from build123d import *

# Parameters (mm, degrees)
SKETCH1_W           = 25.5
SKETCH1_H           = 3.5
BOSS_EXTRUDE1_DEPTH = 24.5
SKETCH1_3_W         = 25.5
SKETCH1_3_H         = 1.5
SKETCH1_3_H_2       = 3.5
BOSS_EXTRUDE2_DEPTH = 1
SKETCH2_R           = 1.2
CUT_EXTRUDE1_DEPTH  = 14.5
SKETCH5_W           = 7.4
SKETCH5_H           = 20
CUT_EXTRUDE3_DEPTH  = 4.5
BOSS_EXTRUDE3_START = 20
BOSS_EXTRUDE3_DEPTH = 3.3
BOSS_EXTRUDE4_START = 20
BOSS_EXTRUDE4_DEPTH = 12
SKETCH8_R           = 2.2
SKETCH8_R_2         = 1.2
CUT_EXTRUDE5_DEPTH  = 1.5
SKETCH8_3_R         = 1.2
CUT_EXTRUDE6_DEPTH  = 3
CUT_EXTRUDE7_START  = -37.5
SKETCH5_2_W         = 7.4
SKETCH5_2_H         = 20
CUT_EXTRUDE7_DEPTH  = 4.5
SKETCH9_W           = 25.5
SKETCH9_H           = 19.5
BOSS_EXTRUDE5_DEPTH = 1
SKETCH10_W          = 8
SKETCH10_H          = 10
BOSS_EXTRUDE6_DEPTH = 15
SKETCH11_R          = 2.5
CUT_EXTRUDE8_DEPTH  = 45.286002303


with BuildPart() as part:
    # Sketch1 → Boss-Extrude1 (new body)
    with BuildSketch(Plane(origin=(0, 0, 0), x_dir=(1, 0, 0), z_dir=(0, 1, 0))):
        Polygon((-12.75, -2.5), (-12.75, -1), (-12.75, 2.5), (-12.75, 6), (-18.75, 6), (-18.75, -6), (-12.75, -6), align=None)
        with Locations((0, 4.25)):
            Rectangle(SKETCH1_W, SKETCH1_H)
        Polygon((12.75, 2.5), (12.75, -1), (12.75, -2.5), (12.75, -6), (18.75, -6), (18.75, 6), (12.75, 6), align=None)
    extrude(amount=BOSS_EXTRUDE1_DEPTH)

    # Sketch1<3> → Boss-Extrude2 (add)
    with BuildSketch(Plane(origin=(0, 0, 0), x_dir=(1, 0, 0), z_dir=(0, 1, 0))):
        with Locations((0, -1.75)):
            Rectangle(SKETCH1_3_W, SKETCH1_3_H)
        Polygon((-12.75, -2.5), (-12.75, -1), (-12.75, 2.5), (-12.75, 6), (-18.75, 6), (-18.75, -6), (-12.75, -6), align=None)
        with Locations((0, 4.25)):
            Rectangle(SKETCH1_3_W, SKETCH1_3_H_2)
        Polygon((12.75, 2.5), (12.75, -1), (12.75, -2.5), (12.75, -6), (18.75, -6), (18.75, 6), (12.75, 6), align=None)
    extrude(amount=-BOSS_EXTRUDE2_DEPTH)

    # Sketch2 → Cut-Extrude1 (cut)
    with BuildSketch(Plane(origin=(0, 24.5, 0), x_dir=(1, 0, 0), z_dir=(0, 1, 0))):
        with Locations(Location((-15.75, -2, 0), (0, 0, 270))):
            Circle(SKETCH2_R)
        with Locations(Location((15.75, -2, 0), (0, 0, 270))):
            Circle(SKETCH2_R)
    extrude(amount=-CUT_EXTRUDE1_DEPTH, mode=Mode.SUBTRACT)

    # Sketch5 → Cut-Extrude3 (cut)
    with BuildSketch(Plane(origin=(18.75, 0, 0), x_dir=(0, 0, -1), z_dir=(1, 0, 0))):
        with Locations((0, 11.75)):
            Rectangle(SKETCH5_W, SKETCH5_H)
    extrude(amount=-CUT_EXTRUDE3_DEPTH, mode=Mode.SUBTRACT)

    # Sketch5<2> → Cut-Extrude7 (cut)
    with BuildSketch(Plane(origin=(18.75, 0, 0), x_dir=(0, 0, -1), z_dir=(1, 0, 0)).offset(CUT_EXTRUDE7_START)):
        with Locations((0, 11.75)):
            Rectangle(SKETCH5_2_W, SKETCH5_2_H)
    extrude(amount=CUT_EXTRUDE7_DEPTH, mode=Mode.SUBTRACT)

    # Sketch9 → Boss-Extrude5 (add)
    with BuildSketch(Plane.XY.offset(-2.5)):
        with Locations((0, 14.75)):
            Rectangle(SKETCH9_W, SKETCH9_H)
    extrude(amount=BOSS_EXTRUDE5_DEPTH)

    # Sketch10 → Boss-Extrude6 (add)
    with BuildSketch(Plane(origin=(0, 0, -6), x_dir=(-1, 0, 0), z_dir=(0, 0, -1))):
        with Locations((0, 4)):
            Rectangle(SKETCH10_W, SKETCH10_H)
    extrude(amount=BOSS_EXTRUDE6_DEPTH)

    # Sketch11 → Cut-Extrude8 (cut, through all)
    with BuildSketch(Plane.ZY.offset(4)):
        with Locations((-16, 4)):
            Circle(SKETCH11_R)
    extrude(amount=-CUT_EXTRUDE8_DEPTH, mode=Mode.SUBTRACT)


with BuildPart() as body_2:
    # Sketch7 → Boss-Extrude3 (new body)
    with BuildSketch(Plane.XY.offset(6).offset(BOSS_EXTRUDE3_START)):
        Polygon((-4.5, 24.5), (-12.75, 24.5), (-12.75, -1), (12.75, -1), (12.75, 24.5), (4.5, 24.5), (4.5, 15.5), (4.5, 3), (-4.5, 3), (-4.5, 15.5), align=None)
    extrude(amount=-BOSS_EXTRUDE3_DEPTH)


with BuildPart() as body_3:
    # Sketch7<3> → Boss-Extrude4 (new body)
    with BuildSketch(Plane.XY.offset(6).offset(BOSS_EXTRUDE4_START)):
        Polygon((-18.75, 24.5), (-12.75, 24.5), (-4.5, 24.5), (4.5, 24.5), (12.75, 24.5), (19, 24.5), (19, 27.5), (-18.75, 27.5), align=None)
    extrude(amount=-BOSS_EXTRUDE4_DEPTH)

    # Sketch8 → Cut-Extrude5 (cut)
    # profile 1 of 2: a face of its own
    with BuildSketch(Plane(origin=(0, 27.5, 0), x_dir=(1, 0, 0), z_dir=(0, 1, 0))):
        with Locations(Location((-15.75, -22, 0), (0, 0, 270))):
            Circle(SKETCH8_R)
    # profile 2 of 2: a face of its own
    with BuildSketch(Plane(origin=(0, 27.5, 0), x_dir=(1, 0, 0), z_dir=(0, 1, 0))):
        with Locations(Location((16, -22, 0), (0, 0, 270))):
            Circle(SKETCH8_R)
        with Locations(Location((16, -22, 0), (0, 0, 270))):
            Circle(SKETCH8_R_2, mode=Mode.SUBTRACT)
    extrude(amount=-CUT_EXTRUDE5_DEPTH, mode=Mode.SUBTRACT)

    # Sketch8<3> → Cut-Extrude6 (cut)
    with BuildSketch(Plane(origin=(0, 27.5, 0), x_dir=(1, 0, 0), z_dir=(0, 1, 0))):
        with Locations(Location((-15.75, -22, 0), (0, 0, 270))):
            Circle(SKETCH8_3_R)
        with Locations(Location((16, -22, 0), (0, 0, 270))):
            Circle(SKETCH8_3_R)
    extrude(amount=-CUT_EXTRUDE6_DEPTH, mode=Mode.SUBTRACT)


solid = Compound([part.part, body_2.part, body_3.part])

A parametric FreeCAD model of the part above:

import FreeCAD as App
import Part
import Sketcher

V = App.Vector

doc = App.newDocument("Part")
body = doc.addObject("PartDesign::Body", "Body")

sketch1 = body.newObject("Sketcher::SketchObject", "Sketch")
sketch1.AttachmentSupport = (doc.getObject("XZ_Plane"), [""])
sketch1.MapMode = "FlatFace"
sketch1.addGeometry([
    Part.LineSegment(V(-19, -6, 0), V(-19, 6, 0)),
    Part.LineSegment(V(-19, 6, 0), V(-13, 6, 0)),
    Part.LineSegment(V(-13, 6, 0), V(-13, -2, 0)),
    Part.LineSegment(V(-13, -2, 0), V(13, -2, 0)),
    Part.LineSegment(V(13, -2, 0), V(13, 6, 0)),
    Part.LineSegment(V(13, 6, 0), V(19, 6, 0)),
    Part.LineSegment(V(19, 6, 0), V(19, -6, 0)),
    Part.LineSegment(V(19, -6, 0), V(-19, -6, 0)),
], False)
sketch1.addConstraint([
    Sketcher.Constraint("Coincident", 0, 2, 1, 1),
    Sketcher.Constraint("Coincident", 1, 2, 2, 1),
    Sketcher.Constraint("Coincident", 2, 2, 3, 1),
    Sketcher.Constraint("Coincident", 3, 2, 4, 1),
    Sketcher.Constraint("Coincident", 4, 2, 5, 1),
    Sketcher.Constraint("Coincident", 5, 2, 6, 1),
    Sketcher.Constraint("Coincident", 6, 2, 7, 1),
    Sketcher.Constraint("Coincident", 7, 2, 0, 1),
    Sketcher.Constraint("Vertical", 0),
    Sketcher.Constraint("Horizontal", 1),
    Sketcher.Constraint("Vertical", 2),
    Sketcher.Constraint("Horizontal", 3),
    Sketcher.Constraint("Vertical", 4),
    Sketcher.Constraint("Horizontal", 5),
    Sketcher.Constraint("Vertical", 6),
    Sketcher.Constraint("Horizontal", 7),
    Sketcher.Constraint("Symmetric", 0, 2, 6, 2, -1, 1),
    Sketcher.Constraint("Symmetric", 1, 2, 4, 2, -2),
    Sketcher.Constraint("DistanceX", 1, 1, 1, 2, 6.0),
    Sketcher.Constraint("DistanceY", 0, 1, 0, 2, 12.0),
    Sketcher.Constraint("DistanceX", 3, 1, 3, 2, 25.5),
    Sketcher.Constraint("DistanceY", 2, 2, 2, 1, 8.5),
])
pad1 = body.newObject("PartDesign::Pad", "Pad")
pad1.Profile = sketch1
pad1.Length = 24.5
pad1.Reversed = True

sketch2 = body.newObject("Sketcher::SketchObject", "Sketch001")
sketch2.AttachmentSupport = (doc.getObject("XZ_Plane"), [""])
sketch2.MapMode = "FlatFace"
sketch2.addGeometry([
    Part.LineSegment(V(-12.8, 2.5, 0), V(12.8, 2.5, 0)),
    Part.LineSegment(V(12.8, 2.5, 0), V(12.8, 6, 0)),
    Part.LineSegment(V(12.8, 6, 0), V(18.8, 6, 0)),
    Part.LineSegment(V(18.8, 6, 0), V(18.8, -6, 0)),
    Part.LineSegment(V(18.8, -6, 0), V(-18.8, -6, 0)),
    Part.LineSegment(V(-18.8, -6, 0), V(-18.8, 6, 0)),
    Part.LineSegment(V(-18.8, 6, 0), V(-12.8, 6, 0)),
    Part.LineSegment(V(-12.8, 6, 0), V(-12.8, 2.5, 0)),
    Part.LineSegment(V(12.8, 1, 0), V(-12.8, 1, 0)),
    Part.LineSegment(V(-12.8, 1, 0), V(-12.8, -2.5, 0)),
    Part.LineSegment(V(-12.8, -2.5, 0), V(12.8, -2.5, 0)),
    Part.LineSegment(V(12.8, -2.5, 0), V(12.8, 1, 0)),
], False)
sketch2.addConstraint([
    Sketcher.Constraint("Coincident", 0, 2, 1, 1),
    Sketcher.Constraint("Coincident", 1, 2, 2, 1),
    Sketcher.Constraint("Coincident", 2, 2, 3, 1),
    Sketcher.Constraint("Coincident", 3, 2, 4, 1),
    Sketcher.Constraint("Coincident", 4, 2, 5, 1),
    Sketcher.Constraint("Coincident", 5, 2, 6, 1),
    Sketcher.Constraint("Coincident", 6, 2, 7, 1),
    Sketcher.Constraint("Coincident", 7, 2, 0, 1),
    Sketcher.Constraint("Coincident", 8, 2, 9, 1),
    Sketcher.Constraint("Coincident", 9, 2, 10, 1),
    Sketcher.Constraint("Coincident", 10, 2, 11, 1),
    Sketcher.Constraint("Coincident", 11, 2, 8, 1),
    Sketcher.Constraint("Horizontal", 0),
    Sketcher.Constraint("Vertical", 1),
    Sketcher.Constraint("Horizontal", 2),
    Sketcher.Constraint("Vertical", 3),
    Sketcher.Constraint("Horizontal", 4),
    Sketcher.Constraint("Vertical", 5),
    Sketcher.Constraint("Horizontal", 6),
    Sketcher.Constraint("Vertical", 7),
    Sketcher.Constraint("Horizontal", 8),
    Sketcher.Constraint("Vertical", 9),
    Sketcher.Constraint("Horizontal", 10),
    Sketcher.Constraint("Vertical", 11),
    Sketcher.Constraint("Symmetric", 2, 2, 4, 2, -1, 1),
    Sketcher.Constraint("Symmetric", 0, 2, 9, 2, -1, 1),
    Sketcher.Constraint("Symmetric", 1, 2, 6, 2, -2),
    Sketcher.Constraint("Vertical", 1, 2, 10, 2),
    Sketcher.Constraint("Equal", 7, 9),
    Sketcher.Constraint("DistanceX", 2, 1, 2, 2, 6.0),
    Sketcher.Constraint("DistanceY", 3, 2, 3, 1, 12.0),
    Sketcher.Constraint("DistanceX", 0, 1, 0, 2, 25.5),
    Sketcher.Constraint("DistanceY", 1, 1, 1, 2, 3.5),
])
pad2 = body.newObject("PartDesign::Pad", "Pad001")
pad2.Profile = sketch2
pad2.Length = 1

sketch3 = body.newObject("Sketcher::SketchObject", "Sketch002")
sketch3.AttachmentSupport = (doc.getObject("XZ_Plane"), [""])
sketch3.MapMode = "FlatFace"
sketch3.AttachmentOffset = App.Placement(V(0, 0, -24.5), App.Rotation())
sketch3.addGeometry([
    Part.Circle(V(-15.8, 2, 0), V(0, 0, 1), 1.2),
    Part.Circle(V(15.8, 2, 0), V(0, 0, 1), 1.2),
], False)
sketch3.addConstraint([
    Sketcher.Constraint("Equal", 0, 1),
    Sketcher.Constraint("Symmetric", 0, 3, 1, 3, -2),
    Sketcher.Constraint("Diameter", 0, 2.4),
    Sketcher.Constraint("DistanceY", -1, 1, 0, 3, 2.0),
    Sketcher.Constraint("DistanceX", 0, 3, 1, 3, 31.5),
])
pocket1 = body.newObject("PartDesign::Pocket", "Pocket")
pocket1.Profile = sketch3
pocket1.Length = 14.5
pocket1.Reversed = True

sketch4 = body.newObject("Sketcher::SketchObject", "Sketch003")
sketch4.AttachmentSupport = (doc.getObject("YZ_Plane"), [""])
sketch4.MapMode = "FlatFace"
sketch4.AttachmentOffset = App.Placement(V(0, 0, 18.75), App.Rotation())
sketch4.addGeometry([
    Part.LineSegment(V(22, 4, 0), V(2, 4, 0)),
    Part.LineSegment(V(2, 4, 0), V(2, -4, 0)),
    Part.LineSegment(V(2, -4, 0), V(22, -4, 0)),
    Part.LineSegment(V(22, -4, 0), V(22, 4, 0)),
], False)
sketch4.addConstraint([
    Sketcher.Constraint("Coincident", 0, 2, 1, 1),
    Sketcher.Constraint("Coincident", 1, 2, 2, 1),
    Sketcher.Constraint("Coincident", 2, 2, 3, 1),
    Sketcher.Constraint("Coincident", 3, 2, 0, 1),
    Sketcher.Constraint("Horizontal", 0),
    Sketcher.Constraint("Vertical", 1),
    Sketcher.Constraint("Horizontal", 2),
    Sketcher.Constraint("Vertical", 3),
    Sketcher.Constraint("DistanceX", 0, 2, 0, 1, 20.0),
    Sketcher.Constraint("DistanceY", 1, 2, 1, 1, 7.4),
    Sketcher.Constraint("DistanceY", -1, 1, 0, 2, 3.7),
    Sketcher.Constraint("DistanceX", -1, 1, 0, 2, 1.75),
])
pocket2 = body.newObject("PartDesign::Pocket", "Pocket001")
pocket2.Profile = sketch4
pocket2.Length = 4.5

sketch5 = body.newObject("Sketcher::SketchObject", "Sketch004")
sketch5.AttachmentSupport = (doc.getObject("YZ_Plane"), [""])
sketch5.MapMode = "FlatFace"
sketch5.AttachmentOffset = App.Placement(V(0, 0, -18.75), App.Rotation())
sketch5.addGeometry([
    Part.LineSegment(V(22, 4, 0), V(2, 4, 0)),
    Part.LineSegment(V(2, 4, 0), V(2, -4, 0)),
    Part.LineSegment(V(2, -4, 0), V(22, -4, 0)),
    Part.LineSegment(V(22, -4, 0), V(22, 4, 0)),
], False)
sketch5.addConstraint([
    Sketcher.Constraint("Coincident", 0, 2, 1, 1),
    Sketcher.Constraint("Coincident", 1, 2, 2, 1),
    Sketcher.Constraint("Coincident", 2, 2, 3, 1),
    Sketcher.Constraint("Coincident", 3, 2, 0, 1),
    Sketcher.Constraint("Horizontal", 0),
    Sketcher.Constraint("Vertical", 1),
    Sketcher.Constraint("Horizontal", 2),
    Sketcher.Constraint("Vertical", 3),
    Sketcher.Constraint("DistanceX", 0, 2, 0, 1, 20.0),
    Sketcher.Constraint("DistanceY", 1, 2, 1, 1, 7.4),
    Sketcher.Constraint("DistanceY", -1, 1, 0, 2, 3.7),
    Sketcher.Constraint("DistanceX", -1, 1, 0, 2, 1.75),
])
pocket3 = body.newObject("PartDesign::Pocket", "Pocket002")
pocket3.Profile = sketch5
pocket3.Length = 4.5
pocket3.Reversed = True

sketch6 = body.newObject("Sketcher::SketchObject", "Sketch005")
sketch6.AttachmentSupport = (doc.getObject("XY_Plane"), [""])
sketch6.MapMode = "FlatFace"
sketch6.AttachmentOffset = App.Placement(V(0, 0, -2.5), App.Rotation())
sketch6.addGeometry([
    Part.LineSegment(V(-13, 24, 0), V(-13, 5, 0)),
    Part.LineSegment(V(-13, 5, 0), V(13, 5, 0)),
    Part.LineSegment(V(13, 5, 0), V(13, 24, 0)),
    Part.LineSegment(V(13, 24, 0), V(-13, 24, 0)),
], False)
sketch6.addConstraint([
    Sketcher.Constraint("Coincident", 0, 2, 1, 1),
    Sketcher.Constraint("Coincident", 1, 2, 2, 1),
    Sketcher.Constraint("Coincident", 2, 2, 3, 1),
    Sketcher.Constraint("Coincident", 3, 2, 0, 1),
    Sketcher.Constraint("Vertical", 0),
    Sketcher.Constraint("Horizontal", 1),
    Sketcher.Constraint("Vertical", 2),
    Sketcher.Constraint("Horizontal", 3),
    Sketcher.Constraint("DistanceX", 1, 1, 1, 2, 25.5),
    Sketcher.Constraint("DistanceY", 0, 2, 0, 1, 19.5),
    Sketcher.Constraint("DistanceY", -1, 1, 0, 2, 5.0),
    Sketcher.Constraint("DistanceX", 0, 2, -1, 1, 12.75),
])
pad3 = body.newObject("PartDesign::Pad", "Pad002")
pad3.Profile = sketch6
pad3.Length = 1

sketch7 = body.newObject("Sketcher::SketchObject", "Sketch006")
sketch7.AttachmentSupport = (doc.getObject("XY_Plane"), [""])
sketch7.MapMode = "FlatFace"
sketch7.AttachmentOffset = App.Placement(V(0, 0, -6), App.Rotation())
sketch7.addGeometry([
    Part.LineSegment(V(4, 9, 0), V(4, -1, 0)),
    Part.LineSegment(V(4, -1, 0), V(-4, -1, 0)),
    Part.LineSegment(V(-4, -1, 0), V(-4, 9, 0)),
    Part.LineSegment(V(-4, 9, 0), V(4, 9, 0)),
], False)
sketch7.addConstraint([
    Sketcher.Constraint("Coincident", 0, 2, 1, 1),
    Sketcher.Constraint("Coincident", 1, 2, 2, 1),
    Sketcher.Constraint("Coincident", 2, 2, 3, 1),
    Sketcher.Constraint("Coincident", 3, 2, 0, 1),
    Sketcher.Constraint("Vertical", 0),
    Sketcher.Constraint("Horizontal", 1),
    Sketcher.Constraint("Vertical", 2),
    Sketcher.Constraint("Horizontal", 3),
    Sketcher.Constraint("DistanceX", 1, 2, 1, 1, 8.0),
    Sketcher.Constraint("DistanceY", 0, 2, 0, 1, 10.0),
    Sketcher.Constraint("DistanceX", -1, 1, 0, 2, 4.0),
    Sketcher.Constraint("DistanceY", 0, 2, -1, 1, 1.0),
])
pad4 = body.newObject("PartDesign::Pad", "Pad003")
pad4.Profile = sketch7
pad4.Length = 15
pad4.Reversed = True

sketch8 = body.newObject("Sketcher::SketchObject", "Sketch007")
sketch8.AttachmentSupport = (doc.getObject("YZ_Plane"), [""])
sketch8.MapMode = "FlatFace"
sketch8.AttachmentOffset = App.Placement(V(0, 0, -4), App.Rotation())
sketch8.addGeometry(Part.Circle(V(4, -16, 0), V(0, 0, 1), 2.5), False)
sketch8.addConstraint([
    Sketcher.Constraint("Diameter", 0, 5.0),
    Sketcher.Constraint("DistanceX", -1, 1, 0, 3, 4.0),
    Sketcher.Constraint("DistanceY", 0, 3, -1, 1, 16.0),
])
pocket4 = body.newObject("PartDesign::Pocket", "Pocket003")
pocket4.Profile = sketch8
pocket4.Type = "ThroughAll"
pocket4.Reversed = True
body2 = doc.addObject("PartDesign::Body", "Body001")

sketch9 = body2.newObject("Sketcher::SketchObject", "Sketch008")
sketch9.AttachmentSupport = (doc.getObject("XY_Plane001"), [""])
sketch9.MapMode = "FlatFace"
sketch9.AttachmentOffset = App.Placement(V(0, 0, 26), App.Rotation())
sketch9.addGeometry([
    Part.LineSegment(V(-4, 24, 0), V(-13, 24, 0)),
    Part.LineSegment(V(-13, 24, 0), V(-13, -1, 0)),
    Part.LineSegment(V(-13, -1, 0), V(13, -1, 0)),
    Part.LineSegment(V(13, -1, 0), V(13, 24, 0)),
    Part.LineSegment(V(13, 24, 0), V(4, 24, 0)),
    Part.LineSegment(V(4, 24, 0), V(4, 3, 0)),
    Part.LineSegment(V(4, 3, 0), V(-4, 3, 0)),
    Part.LineSegment(V(-4, 3, 0), V(-4, 24, 0)),
], False)
sketch9.addConstraint([
    Sketcher.Constraint("Coincident", 0, 2, 1, 1),
    Sketcher.Constraint("Coincident", 1, 2, 2, 1),
    Sketcher.Constraint("Coincident", 2, 2, 3, 1),
    Sketcher.Constraint("Coincident", 3, 2, 4, 1),
    Sketcher.Constraint("Coincident", 4, 2, 5, 1),
    Sketcher.Constraint("Coincident", 5, 2, 6, 1),
    Sketcher.Constraint("Coincident", 6, 2, 7, 1),
    Sketcher.Constraint("Coincident", 7, 2, 0, 1),
    Sketcher.Constraint("Horizontal", 0),
    Sketcher.Constraint("Vertical", 1),
    Sketcher.Constraint("Horizontal", 2),
    Sketcher.Constraint("Vertical", 3),
    Sketcher.Constraint("Horizontal", 4),
    Sketcher.Constraint("Vertical", 5),
    Sketcher.Constraint("Horizontal", 6),
    Sketcher.Constraint("Vertical", 7),
    Sketcher.Constraint("Symmetric", 0, 2, 3, 2, -2),
    Sketcher.Constraint("Equal", 0, 4),
    Sketcher.Constraint("Equal", 2, 1),
    Sketcher.Constraint("DistanceX", 6, 2, 6, 1, 9.0),
    Sketcher.Constraint("DistanceX", 2, 1, 2, 2, 25.5),
    Sketcher.Constraint("DistanceY", 5, 2, 5, 1, 21.5),
    Sketcher.Constraint("DistanceY", 1, 2, -1, 1, 1.0),
])
pad5 = body2.newObject("PartDesign::Pad", "Pad004")
pad5.Profile = sketch9
pad5.Length = 3.3
pad5.Reversed = True
body3 = doc.addObject("PartDesign::Body", "Body002")

sketch10 = body3.newObject("Sketcher::SketchObject", "Sketch009")
sketch10.AttachmentSupport = (doc.getObject("XY_Plane002"), [""])
sketch10.MapMode = "FlatFace"
sketch10.AttachmentOffset = App.Placement(V(0, 0, 26), App.Rotation())
sketch10.addGeometry([
    Part.LineSegment(V(-18.8, 24.5, 0), V(19, 24.5, 0)),
    Part.LineSegment(V(19, 24.5, 0), V(19, 27.5, 0)),
    Part.LineSegment(V(19, 27.5, 0), V(-18.8, 27.5, 0)),
    Part.LineSegment(V(-18.8, 27.5, 0), V(-18.8, 24.5, 0)),
], False)
sketch10.addConstraint([
    Sketcher.Constraint("Coincident", 0, 2, 1, 1),
    Sketcher.Constraint("Coincident", 1, 2, 2, 1),
    Sketcher.Constraint("Coincident", 2, 2, 3, 1),
    Sketcher.Constraint("Coincident", 3, 2, 0, 1),
    Sketcher.Constraint("Horizontal", 0),
    Sketcher.Constraint("Vertical", 1),
    Sketcher.Constraint("Horizontal", 2),
    Sketcher.Constraint("Vertical", 3),
    Sketcher.Constraint("DistanceY", 1, 1, 1, 2, 3.0),
    Sketcher.Constraint("DistanceX", -1, 1, 0, 2, 19.0),
    Sketcher.Constraint("DistanceX", 0, 1, 0, 2, 37.75),
    Sketcher.Constraint("DistanceY", -1, 1, 0, 2, 24.5),
])
pad6 = body3.newObject("PartDesign::Pad", "Pad005")
pad6.Profile = sketch10
pad6.Length = 12
pad6.Reversed = True

sketch11 = body3.newObject("Sketcher::SketchObject", "Sketch010")
sketch11.AttachmentSupport = (doc.getObject("XZ_Plane002"), [""])
sketch11.MapMode = "FlatFace"
sketch11.AttachmentOffset = App.Placement(V(0, 0, -27.5), App.Rotation())
sketch11.addGeometry([
    Part.Circle(V(-15.8, 22, 0), V(0, 0, 1), 2.2),
    Part.Circle(V(16, 22, 0), V(0, 0, 1), 2.2),
    Part.Circle(V(16, 22, 0), V(0, 0, 1), 1.2),
], False)
sketch11.addConstraint([
    Sketcher.Constraint("Coincident", 2, 3, 1, 3),
    Sketcher.Constraint("Equal", 0, 1),
    Sketcher.Constraint("Horizontal", 0, 3, 1, 3),
    Sketcher.Constraint("Diameter", 0, 4.4),
    Sketcher.Constraint("Diameter", 2, 2.4),
    Sketcher.Constraint("DistanceY", -1, 1, 0, 3, 22.0),
    Sketcher.Constraint("DistanceX", -1, 1, 1, 3, 16.0),
    Sketcher.Constraint("DistanceX", 0, 3, -1, 1, 15.75),
])
pocket5 = body3.newObject("PartDesign::Pocket", "Pocket004")
pocket5.Profile = sketch11
pocket5.Length = 1.5
pocket5.Reversed = True

sketch12 = body3.newObject("Sketcher::SketchObject", "Sketch011")
sketch12.AttachmentSupport = (doc.getObject("XZ_Plane002"), [""])
sketch12.MapMode = "FlatFace"
sketch12.AttachmentOffset = App.Placement(V(0, 0, -27.5), App.Rotation())
sketch12.addGeometry([
    Part.Circle(V(-15.8, 22, 0), V(0, 0, 1), 1.2),
    Part.Circle(V(16, 22, 0), V(0, 0, 1), 1.2),
], False)
sketch12.addConstraint([
    Sketcher.Constraint("Equal", 0, 1),
    Sketcher.Constraint("Horizontal", 0, 3, 1, 3),
    Sketcher.Constraint("Diameter", 0, 2.4),
    Sketcher.Constraint("DistanceY", -1, 1, 0, 3, 22.0),
    Sketcher.Constraint("DistanceX", -1, 1, 1, 3, 16.0),
    Sketcher.Constraint("DistanceX", 0, 3, -1, 1, 15.75),
])
pocket6 = body3.newObject("PartDesign::Pocket", "Pocket005")
pocket6.Profile = sketch12
pocket6.Length = 3
pocket6.Reversed = True

doc.recompute()
